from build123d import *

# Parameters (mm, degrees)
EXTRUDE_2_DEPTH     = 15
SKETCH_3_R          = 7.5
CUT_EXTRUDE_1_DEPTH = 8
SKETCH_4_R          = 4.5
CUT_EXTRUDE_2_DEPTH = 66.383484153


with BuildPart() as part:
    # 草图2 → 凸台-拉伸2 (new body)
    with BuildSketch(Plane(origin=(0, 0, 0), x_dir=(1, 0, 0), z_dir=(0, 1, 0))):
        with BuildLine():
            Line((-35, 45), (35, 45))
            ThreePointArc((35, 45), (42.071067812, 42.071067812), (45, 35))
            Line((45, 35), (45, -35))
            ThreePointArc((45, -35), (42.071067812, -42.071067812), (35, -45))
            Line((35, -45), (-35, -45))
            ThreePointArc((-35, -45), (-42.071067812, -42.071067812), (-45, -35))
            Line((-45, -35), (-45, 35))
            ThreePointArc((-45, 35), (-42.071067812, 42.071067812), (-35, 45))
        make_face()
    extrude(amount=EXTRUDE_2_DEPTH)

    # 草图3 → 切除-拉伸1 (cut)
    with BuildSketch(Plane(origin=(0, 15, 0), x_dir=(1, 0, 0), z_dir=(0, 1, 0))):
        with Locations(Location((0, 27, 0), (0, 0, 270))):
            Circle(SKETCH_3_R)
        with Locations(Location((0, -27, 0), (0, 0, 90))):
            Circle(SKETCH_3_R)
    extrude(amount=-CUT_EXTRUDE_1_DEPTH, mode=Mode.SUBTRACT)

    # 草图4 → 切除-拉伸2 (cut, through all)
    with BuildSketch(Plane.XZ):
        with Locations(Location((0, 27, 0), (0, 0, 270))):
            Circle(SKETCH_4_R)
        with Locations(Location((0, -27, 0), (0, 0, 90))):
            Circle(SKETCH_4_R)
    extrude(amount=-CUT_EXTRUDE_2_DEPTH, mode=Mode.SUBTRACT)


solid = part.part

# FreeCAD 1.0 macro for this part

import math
import FreeCAD as App
import Part
import Sketcher
from FreeCAD import Vector

doc = App.newDocument("Part")
body = doc.addObject("PartDesign::Body", "Body")

# Sketch on XZ plane
sketch1 = doc.addObject("Sketcher::SketchObject", "Sketch")
body.addObject(sketch1)
sketch1.AttachmentSupport = (doc.XZ_Plane, [""])
sketch1.MapMode = "FlatFace"
sketch1.addGeometry(Part.LineSegment(Vector(35, -45, 0), Vector(-35, -45, 0)), False)
sketch1.addGeometry(Part.ArcOfCircle(Part.Circle(Vector(-35, -35, 0), Vector(0, 0, 1), 10), math.radians(180), math.radians(270)), False)
sketch1.addGeometry(Part.LineSegment(Vector(-45, -35, 0), Vector(-45, 35, 0)), False)
sketch1.addGeometry(Part.ArcOfCircle(Part.Circle(Vector(-35, 35, 0), Vector(0, 0, 1), 10), math.radians(90), math.radians(180)), False)
sketch1.addGeometry(Part.LineSegment(Vector(-35, 45, 0), Vector(35, 45, 0)), False)
sketch1.addGeometry(Part.ArcOfCircle(Part.Circle(Vector(35, 35, 0), Vector(0, 0, 1), 10), math.radians(0), math.radians(90)), False)
sketch1.addGeometry(Part.LineSegment(Vector(45, 35, 0), Vector(45, -35, 0)), False)
sketch1.addGeometry(Part.ArcOfCircle(Part.Circle(Vector(35, -35, 0), Vector(0, 0, 1), 10), math.radians(-90), math.radians(0)), False)
sketch1.addConstraint(Sketcher.Constraint("Tangent", 0, 2, 1, 2))
sketch1.addConstraint(Sketcher.Constraint("Tangent", 1, 1, 2, 1))
sketch1.addConstraint(Sketcher.Constraint("Tangent", 2, 2, 3, 2))
sketch1.addConstraint(Sketcher.Constraint("Tangent", 3, 1, 4, 1))
sketch1.addConstraint(Sketcher.Constraint("Tangent", 4, 2, 5, 2))
sketch1.addConstraint(Sketcher.Constraint("Tangent", 5, 1, 6, 1))
sketch1.addConstraint(Sketcher.Constraint("Tangent", 6, 2, 7, 2))
sketch1.addConstraint(Sketcher.Constraint("Tangent", 7, 1, 0, 1))
sketch1.addConstraint(Sketcher.Constraint("Horizontal", 0))
sketch1.addConstraint(Sketcher.Constraint("Vertical", 2))
sketch1.addConstraint(Sketcher.Constraint("Horizontal", 4))
sketch1.addConstraint(Sketcher.Constraint("Vertical", 6))
sketch1.addConstraint(Sketcher.Constraint("Equal", 1, 3))
sketch1.addConstraint(Sketcher.Constraint("Equal", 3, 5))
sketch1.addConstraint(Sketcher.Constraint("Equal", 5, 7))
sketch1.addConstraint(Sketcher.Constraint("Symmetric", 1, 3, 5, 3, -1, 1))
sketch1.addConstraint(Sketcher.Constraint("Equal", 4, 2))
sketch1.addConstraint(Sketcher.Constraint("Radius", 1, 10.0))
sketch1.addConstraint(Sketcher.Constraint("DistanceX", 0, 2, 0, 1, 70.0))
pad1 = doc.addObject("PartDesign::Pad", "Pad")
body.addObject(pad1)
pad1.Profile = sketch1
pad1.Length = 15
pad1.Reversed = True

# Sketch on XZ plane
sketch2 = doc.addObject("Sketcher::SketchObject", "Sketch001")
body.addObject(sketch2)
sketch2.AttachmentSupport = (doc.XZ_Plane, [""])
sketch2.MapMode = "FlatFace"
sketch2.AttachmentOffset = App.Placement(Vector(0, 0, -15), App.Rotation())
sketch2.addGeometry(Part.Circle(Vector(0, -27, 0), Vector(0, 0, 1), 8), False)
sketch2.addGeometry(Part.Circle(Vector(0, 27, 0), Vector(0, 0, 1), 8), False)
sketch2.addConstraint(Sketcher.Constraint("Equal", 0, 1))
sketch2.addConstraint(Sketcher.Constraint("Symmetric", 0, 3, 1, 3, -1, 1))
sketch2.addConstraint(Sketcher.Constraint("PointOnObject", 0, 3, -2))
sketch2.addConstraint(Sketcher.Constraint("Diameter", 0, 15.0))
sketch2.addConstraint(Sketcher.Constraint("DistanceY", 0, 3, -1, 1, 27.0))
pocket1 = doc.addObject("PartDesign::Pocket", "Pocket")
body.addObject(pocket1)
pocket1.Profile = sketch2
pocket1.Length = 8
pocket1.Reversed = True

# Sketch on XZ plane
sketch3 = doc.addObject("Sketcher::SketchObject", "Sketch002")
body.addObject(sketch3)
sketch3.AttachmentSupport = (doc.XZ_Plane, [""])
sketch3.MapMode = "FlatFace"
sketch3.addGeometry(Part.Circle(Vector(0, 27, 0), Vector(0, 0, 1), 4.5), False)
sketch3.addGeometry(Part.Circle(Vector(0, -27, 0), Vector(0, 0, 1), 4.5), False)
sketch3.addConstraint(Sketcher.Constraint("Equal", 0, 1))
sketch3.addConstraint(Sketcher.Constraint("Symmetric", 0, 3, 1, 3, -1, 1))
sketch3.addConstraint(Sketcher.Constraint("PointOnObject", 0, 3, -2))
sketch3.addConstraint(Sketcher.Constraint("Diameter", 0, 9.0))
sketch3.addConstraint(Sketcher.Constraint("DistanceY", -1, 1, 0, 3, 27.0))
pocket2 = doc.addObject("PartDesign::Pocket", "Pocket001")
body.addObject(pocket2)
pocket2.Profile = sketch3
pocket2.Type = "ThroughAll"

doc.recompute()
